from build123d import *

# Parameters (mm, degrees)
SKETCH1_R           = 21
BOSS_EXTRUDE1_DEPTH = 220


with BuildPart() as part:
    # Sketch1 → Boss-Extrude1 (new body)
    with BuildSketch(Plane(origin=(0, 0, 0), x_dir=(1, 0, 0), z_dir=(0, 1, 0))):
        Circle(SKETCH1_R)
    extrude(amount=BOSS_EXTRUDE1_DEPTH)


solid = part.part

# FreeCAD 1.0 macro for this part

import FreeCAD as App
import Part
import Sketcher
from FreeCAD import Vector
Q = App.Units.Quantity

doc = App.newDocument("Part")
body = doc.addObject("PartDesign::Body", "Body")

sketch1 = body.newObject("Sketcher::SketchObject", "Sketch")
sketch1.AttachmentSupport = (doc.getObject("XZ_Plane"), [""])
sketch1.MapMode = "FlatFace"
sketch1.addGeometry(Part.Circle(Vector(0, 0, 0), Vector(0, 0, 1), 21), False)
sketch1.addConstraint(Sketcher.Constraint("Coincident", 0, 3, -1, 1))
sketch1.addConstraint(Sketcher.Constraint("Diameter", 0, Q("42 mm")))
pad1 = body.newObject("PartDesign::Pad", "Pad")
pad1.Profile = sketch1
pad1.Length = 220
pad1.Reversed = True

doc.recompute()
